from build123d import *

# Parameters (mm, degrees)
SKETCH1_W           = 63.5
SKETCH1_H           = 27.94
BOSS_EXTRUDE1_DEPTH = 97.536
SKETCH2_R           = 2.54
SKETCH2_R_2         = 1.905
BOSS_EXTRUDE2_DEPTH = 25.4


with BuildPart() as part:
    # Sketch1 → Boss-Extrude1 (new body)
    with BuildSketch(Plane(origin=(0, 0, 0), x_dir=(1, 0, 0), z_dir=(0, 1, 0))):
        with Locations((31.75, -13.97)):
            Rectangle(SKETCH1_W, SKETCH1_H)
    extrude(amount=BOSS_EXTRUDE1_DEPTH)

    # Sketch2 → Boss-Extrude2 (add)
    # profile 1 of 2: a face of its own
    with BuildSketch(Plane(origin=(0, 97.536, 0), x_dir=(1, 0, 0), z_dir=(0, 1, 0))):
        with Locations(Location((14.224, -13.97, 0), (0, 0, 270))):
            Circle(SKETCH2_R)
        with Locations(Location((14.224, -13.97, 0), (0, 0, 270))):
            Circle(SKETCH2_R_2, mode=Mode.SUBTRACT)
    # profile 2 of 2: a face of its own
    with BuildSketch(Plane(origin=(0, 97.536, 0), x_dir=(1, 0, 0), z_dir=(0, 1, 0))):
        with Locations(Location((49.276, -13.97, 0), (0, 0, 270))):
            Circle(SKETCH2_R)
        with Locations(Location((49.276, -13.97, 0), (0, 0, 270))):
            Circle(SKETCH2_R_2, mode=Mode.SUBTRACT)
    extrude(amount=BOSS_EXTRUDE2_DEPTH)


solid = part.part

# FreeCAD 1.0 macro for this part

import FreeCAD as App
import Part
import Sketcher

V = App.Vector
Q = App.Units.Quantity

doc = App.newDocument("Part")
body = doc.addObject("PartDesign::Body", "Body")

# Sketch on XZ plane
sketch1 = body.newObject("Sketcher::SketchObject", "Sketch")
sketch1.AttachmentSupport = (doc.getObject("XZ_Plane"), [""])
sketch1.MapMode = "FlatFace"
sketch1.addGeometry([
    Part.LineSegment(V(0, 0, 0), V(0, 28, 0)),
    Part.LineSegment(V(0, 28, 0), V(64, 28, 0)),
    Part.LineSegment(V(64, 28, 0), V(64, 0, 0)),
    Part.LineSegment(V(64, 0, 0), V(0, 0, 0)),
], False)
sketch1.addConstraint([
    Sketcher.Constraint("Coincident", 0, 2, 1, 1),
    Sketcher.Constraint("Coincident", 1, 2, 2, 1),
    Sketcher.Constraint("Coincident", 2, 2, 3, 1),
    Sketcher.Constraint("Coincident", 3, 2, 0, 1),
    Sketcher.Constraint("Vertical", 0),
    Sketcher.Constraint("Horizontal", 1),
    Sketcher.Constraint("Vertical", 2),
    Sketcher.Constraint("Horizontal", 3),
    Sketcher.Constraint("Coincident", 3, 2, -1, 1),
    Sketcher.Constraint("DistanceX", 1, 1, 1, 2, Q("2.5 in")),
    Sketcher.Constraint("DistanceY", 0, 1, 0, 2, Q("1.1 in")),
])
pad1 = body.newObject("PartDesign::Pad", "Pad")
pad1.Profile = sketch1
pad1.Length = Q("3.84 in")
pad1.Reversed = True

# Sketch on XZ plane
sketch2 = body.newObject("Sketcher::SketchObject", "Sketch001")
sketch2.AttachmentSupport = (doc.getObject("XZ_Plane"), [""])
sketch2.MapMode = "FlatFace"
sketch2.AttachmentOffset = App.Placement(V(0, 0, -3.84 * 25.4), App.Rotation())
sketch2.addGeometry([
    Part.Circle(V(14.2, 14, 0), V(0, 0, 1), 2.5),
    Part.Circle(V(14.2, 14, 0), V(0, 0, 1), 1.9),
    Part.Circle(V(49.3, 14, 0), V(0, 0, 1), 2.5),
    Part.Circle(V(49.3, 14, 0), V(0, 0, 1), 1.9),
], False)
sketch2.addConstraint([
    Sketcher.Constraint("Coincident", 1, 3, 0, 3),
    Sketcher.Constraint("Coincident", 3, 3, 2, 3),
    Sketcher.Constraint("Equal", 0, 2),
    Sketcher.Constraint("Equal", 1, 3),
    Sketcher.Constraint("Horizontal", 1, 3, 2, 3),
    Sketcher.Constraint("Diameter", 0, Q("0.2 in")),
    Sketcher.Constraint("Diameter", 1, Q("0.15 in")),
    Sketcher.Constraint("DistanceX", -1, 1, 0, 3, Q("0.56 in")),
    Sketcher.Constraint("DistanceY", -1, 1, 0, 3, Q("0.55 in")),
    Sketcher.Constraint("DistanceX", -1, 1, 2, 3, Q("1.94 in")),
])
pad2 = body.newObject("PartDesign::Pad", "Pad001")
pad2.Profile = sketch2
pad2.Length = Q("1 in")
pad2.Reversed = True

doc.recompute()
